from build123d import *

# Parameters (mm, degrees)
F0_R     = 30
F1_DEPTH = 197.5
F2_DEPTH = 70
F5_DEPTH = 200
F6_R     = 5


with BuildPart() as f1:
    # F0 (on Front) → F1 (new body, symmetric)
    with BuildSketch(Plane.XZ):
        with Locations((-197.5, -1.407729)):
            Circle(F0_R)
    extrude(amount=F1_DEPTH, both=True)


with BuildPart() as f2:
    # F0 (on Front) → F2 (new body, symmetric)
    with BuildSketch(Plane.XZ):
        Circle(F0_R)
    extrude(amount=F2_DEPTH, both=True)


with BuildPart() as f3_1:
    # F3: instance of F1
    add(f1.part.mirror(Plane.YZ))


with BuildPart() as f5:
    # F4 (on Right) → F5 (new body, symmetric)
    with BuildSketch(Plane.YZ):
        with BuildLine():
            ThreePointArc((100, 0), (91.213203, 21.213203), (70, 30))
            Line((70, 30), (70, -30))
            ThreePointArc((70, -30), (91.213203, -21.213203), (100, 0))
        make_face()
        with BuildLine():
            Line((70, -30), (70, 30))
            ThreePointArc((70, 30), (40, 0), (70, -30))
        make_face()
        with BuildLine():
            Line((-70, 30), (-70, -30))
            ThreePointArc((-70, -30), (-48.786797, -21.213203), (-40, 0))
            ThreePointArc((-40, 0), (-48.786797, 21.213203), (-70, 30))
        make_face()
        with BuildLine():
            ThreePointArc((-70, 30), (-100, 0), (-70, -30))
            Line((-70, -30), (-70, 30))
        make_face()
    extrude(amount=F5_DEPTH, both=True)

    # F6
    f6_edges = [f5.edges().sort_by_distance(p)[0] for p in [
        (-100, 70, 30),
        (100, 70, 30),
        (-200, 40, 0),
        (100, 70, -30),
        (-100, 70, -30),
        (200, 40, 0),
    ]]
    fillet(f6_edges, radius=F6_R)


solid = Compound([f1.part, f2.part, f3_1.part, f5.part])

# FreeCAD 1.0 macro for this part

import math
import FreeCAD as App
import Part
import Sketcher
from FreeCAD import Vector


def edges_at(feature, points):
    """Names of the edges that pass closest to the given points."""
    edges = feature.Shape.Edges
    near = lambda p: min(range(len(edges)), key=lambda i: edges[i].distToShape(Part.Vertex(*p))[0])
    return sorted({f"Edge{near(p) + 1}" for p in points})

doc = App.newDocument("Part")
body = doc.addObject("PartDesign::Body", "Body")

sketch1 = doc.addObject("Sketcher::SketchObject", "Sketch")
body.addObject(sketch1)
sketch1.AttachmentSupport = (doc.XZ_Plane, [""])
sketch1.MapMode = "FlatFace"
sketch1.addGeometry(Part.Circle(Vector(-198, -1, 0), Vector(0, 0, 1), 30), False)
sketch1.addConstraint([
    Sketcher.Constraint("Diameter", 0, 60.0),
    Sketcher.Constraint("DistanceX", 0, 3, -1, 1, 197.5),
    Sketcher.Constraint("DistanceY", 0, 3, -1, 1, 1.407729),
])
pad1 = doc.addObject("PartDesign::Pad", "Pad")
body.addObject(pad1)
pad1.Profile = sketch1
pad1.Length = 395
pad1.Midplane = True
body2 = doc.addObject("PartDesign::Body", "Body001")

sketch2 = doc.addObject("Sketcher::SketchObject", "Sketch001")
body2.addObject(sketch2)
sketch2.AttachmentSupport = (doc.getObject("XZ_Plane001"), [""])
sketch2.MapMode = "FlatFace"
sketch2.addGeometry(Part.Circle(Vector(0, 0, 0), Vector(0, 0, 1), 30), False)
sketch2.addConstraint([
    Sketcher.Constraint("Coincident", 0, 3, -1, 1),
    Sketcher.Constraint("Diameter", 0, 60.0),
])
pad2 = doc.addObject("PartDesign::Pad", "Pad001")
body2.addObject(pad2)
pad2.Profile = sketch2
pad2.Length = 140
pad2.Midplane = True
body3 = doc.addObject("PartDesign::Body", "Body002")
doc.recompute()

mirroring = doc.addObject("Part::Mirroring", "Mirroring")
mirroring.Source = body
mirroring.Base = Vector(0, 0, 0)
mirroring.Normal = Vector(1, 0, 0)
body3.BaseFeature = mirroring
doc.recompute()
body4 = doc.addObject("PartDesign::Body", "Body003")
body4.AllowCompound = True

sketch3 = doc.addObject("Sketcher::SketchObject", "Sketch002")
body4.addObject(sketch3)
sketch3.AttachmentSupport = (doc.getObject("YZ_Plane003"), [""])
sketch3.MapMode = "FlatFace"
sketch3.addGeometry([
    Part.ArcOfCircle(Part.Circle(Vector(70, 0, 0), Vector(0, 0, 1), 30), math.radians(-90), math.radians(0)),
    Part.ArcOfCircle(Part.Circle(Vector(70, 0, 0), Vector(0, 0, 1), 30), math.radians(0), math.radians(90)),
    Part.ArcOfCircle(Part.Circle(Vector(70, 0, 0), Vector(0, 0, 1), 30), math.radians(90), math.radians(270)),
    Part.ArcOfCircle(Part.Circle(Vector(-70, 0, 0), Vector(0, 0, 1), 30), math.radians(-90), math.radians(0)),
    Part.ArcOfCircle(Part.Circle(Vector(-70, 0, 0), Vector(0, 0, 1), 30), math.radians(0), math.radians(90)),
    Part.ArcOfCircle(Part.Circle(Vector(-70, 0, 0), Vector(0, 0, 1), 30), math.radians(90), math.radians(270)),
], False)
sketch3.addConstraint([
    Sketcher.Constraint("Tangent", 0, 2, 1, 1),
    Sketcher.Constraint("Tangent", 1, 2, 2, 1),
    Sketcher.Constraint("Tangent", 2, 2, 0, 1),
    Sketcher.Constraint("Tangent", 3, 2, 4, 1),
    Sketcher.Constraint("Tangent", 4, 2, 5, 1),
    Sketcher.Constraint("Tangent", 5, 2, 3, 1),
    Sketcher.Constraint("Equal", 2, 3),
    Sketcher.Constraint("Symmetric", 0, 3, 3, 3, -1, 1),
    Sketcher.Constraint("Symmetric", 1, 2, 4, 2, -2),
    Sketcher.Constraint("PointOnObject", 0, 2, -1),
    Sketcher.Constraint("PointOnObject", 3, 2, -1),
    Sketcher.Constraint("Vertical", 2, 3, 1, 2),
    Sketcher.Constraint("Vertical", 1, 2, 2, 2),
    Sketcher.Constraint("Vertical", 4, 2, 5, 2),
    Sketcher.Constraint("Radius", 0, 30.000001),
    Sketcher.Constraint("DistanceX", -1, 1, 0, 3, 69.999999),
])
pad3 = doc.addObject("PartDesign::Pad", "Pad002")
body4.addObject(pad3)
pad3.Profile = sketch3
pad3.Length = 400
pad3.Midplane = True
doc.recompute()

fillet = doc.addObject("PartDesign::Fillet", "Fillet")
body4.addObject(fillet)
fillet.Base = (pad3, edges_at(pad3, [
    (0, 70, 30),
    (0, 70, 30),
    (-200, 40, 0),
    (0, 70, -30),
    (0, 70, -30),
    (200, 40, 0),
]))
fillet.Radius = 5
mirroring.Visibility = False

doc.recompute()
